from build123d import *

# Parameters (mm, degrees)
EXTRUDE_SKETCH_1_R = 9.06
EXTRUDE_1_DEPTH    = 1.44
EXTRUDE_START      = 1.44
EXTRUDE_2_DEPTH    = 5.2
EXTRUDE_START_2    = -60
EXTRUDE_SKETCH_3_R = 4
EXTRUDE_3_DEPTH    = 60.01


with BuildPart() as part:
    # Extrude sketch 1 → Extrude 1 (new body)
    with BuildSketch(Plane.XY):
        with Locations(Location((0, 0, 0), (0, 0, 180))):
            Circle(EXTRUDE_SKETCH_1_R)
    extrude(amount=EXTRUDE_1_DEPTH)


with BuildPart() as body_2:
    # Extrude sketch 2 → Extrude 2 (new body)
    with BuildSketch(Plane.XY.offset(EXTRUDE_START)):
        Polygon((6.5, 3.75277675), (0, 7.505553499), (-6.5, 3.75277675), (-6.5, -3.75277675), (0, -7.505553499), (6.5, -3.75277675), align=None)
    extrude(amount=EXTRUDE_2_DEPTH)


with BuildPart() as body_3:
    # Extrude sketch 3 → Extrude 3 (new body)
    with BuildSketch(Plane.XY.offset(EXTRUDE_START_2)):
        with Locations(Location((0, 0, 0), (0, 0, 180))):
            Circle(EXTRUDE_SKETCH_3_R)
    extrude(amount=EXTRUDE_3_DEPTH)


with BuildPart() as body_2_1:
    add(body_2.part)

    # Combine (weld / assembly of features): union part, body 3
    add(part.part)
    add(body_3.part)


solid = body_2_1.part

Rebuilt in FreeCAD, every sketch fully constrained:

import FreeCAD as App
import Part
import Sketcher

V = App.Vector
Q = App.Units.Quantity


def add_polygon(sketch, points):
    """Adds a closed chain of lines whose ends are joined by coincident constraints."""
    first, n = sketch.GeometryCount, len(points)
    for a, b in zip(points, points[1:] + points[:1]):
        sketch.addGeometry(Part.LineSegment(App.Vector(*a, 0), App.Vector(*b, 0)), False)
    for i in range(n):
        sketch.addConstraint(Sketcher.Constraint("Coincident", first + i, 2, first + (i + 1) % n, 1))

doc = App.newDocument("Part")
body = doc.addObject("PartDesign::Body", "Body")

# Sketch on XY plane
sketch1 = doc.addObject("Sketcher::SketchObject", "Sketch")
body.addObject(sketch1)
sketch1.AttachmentSupport = (doc.XY_Plane, [""])
sketch1.MapMode = "FlatFace"
sketch1.addGeometry(Part.Circle(V(0, 0, 0), V(0, 0, 1), 9), False)
sketch1.addConstraint(Sketcher.Constraint("Coincident", 0, 3, -1, 1))
sketch1.addConstraint(Sketcher.Constraint("Diameter", 0, Q("18.12 mm")))
pad1 = doc.addObject("PartDesign::Pad", "Pad")
body.addObject(pad1)
pad1.Profile = sketch1
pad1.Length = 1.44
body2 = doc.addObject("PartDesign::Body", "Body001")

# Sketch on XY plane
sketch2 = doc.addObject("Sketcher::SketchObject", "Sketch001")
body2.addObject(sketch2)
sketch2.AttachmentSupport = (doc.getObject("XY_Plane001"), [""])
sketch2.MapMode = "FlatFace"
sketch2.AttachmentOffset = App.Placement(V(0, 0, 1.44), App.Rotation())
add_polygon(sketch2, [(6, 4), (0, 8), (-6, 4), (-6, -4), (0, -8), (6, -4)])  # lines 0-5
sketch2.addConstraint(Sketcher.Constraint("Vertical", 2))
sketch2.addConstraint(Sketcher.Constraint("Vertical", 5))
sketch2.addConstraint(Sketcher.Constraint("Symmetric", 0, 2, 3, 2, -1, 1))
sketch2.addConstraint(Sketcher.Constraint("Symmetric", 1, 2, 4, 2, -1, 1))
sketch2.addConstraint(Sketcher.Constraint("PointOnObject", 0, 2, -2))
sketch2.addConstraint(Sketcher.Constraint("Parallel", 0, 3))
sketch2.addConstraint(Sketcher.Constraint("Horizontal", 2, 2, 4, 2))
sketch2.addConstraint(Sketcher.Constraint("Angle", 0, Q("150 deg")))
sketch2.addConstraint(Sketcher.Constraint("DistanceX", 2, 2, 4, 2, Q("13 mm")))
sketch2.addConstraint(Sketcher.Constraint("DistanceY", 2, 2, 2, 1, Q("7.505554 mm")))
pad2 = doc.addObject("PartDesign::Pad", "Pad001")
body2.addObject(pad2)
pad2.Profile = sketch2
pad2.Length = 5.2
body3 = doc.addObject("PartDesign::Body", "Body002")

# Sketch on XY plane
sketch3 = doc.addObject("Sketcher::SketchObject", "Sketch002")
body3.addObject(sketch3)
sketch3.AttachmentSupport = (doc.getObject("XY_Plane002"), [""])
sketch3.MapMode = "FlatFace"
sketch3.AttachmentOffset = App.Placement(V(0, 0, -60), App.Rotation())
sketch3.addGeometry(Part.Circle(V(0, 0, 0), V(0, 0, 1), 4), False)
sketch3.addConstraint(Sketcher.Constraint("Coincident", 0, 3, -1, 1))
sketch3.addConstraint(Sketcher.Constraint("Diameter", 0, Q("8 mm")))
pad3 = doc.addObject("PartDesign::Pad", "Pad002")
body3.addObject(pad3)
pad3.Profile = sketch3
pad3.Length = 60.01
doc.recompute()

boolean = doc.addObject("PartDesign::Boolean", "Boolean")
body2.addObject(boolean)
boolean.Type = "Fuse"
boolean.addObjects([body])
doc.recompute()

boolean2 = doc.addObject("PartDesign::Boolean", "Boolean001")
body2.addObject(boolean2)
boolean2.Type = "Fuse"
boolean2.addObjects([body3])

doc.recompute()
